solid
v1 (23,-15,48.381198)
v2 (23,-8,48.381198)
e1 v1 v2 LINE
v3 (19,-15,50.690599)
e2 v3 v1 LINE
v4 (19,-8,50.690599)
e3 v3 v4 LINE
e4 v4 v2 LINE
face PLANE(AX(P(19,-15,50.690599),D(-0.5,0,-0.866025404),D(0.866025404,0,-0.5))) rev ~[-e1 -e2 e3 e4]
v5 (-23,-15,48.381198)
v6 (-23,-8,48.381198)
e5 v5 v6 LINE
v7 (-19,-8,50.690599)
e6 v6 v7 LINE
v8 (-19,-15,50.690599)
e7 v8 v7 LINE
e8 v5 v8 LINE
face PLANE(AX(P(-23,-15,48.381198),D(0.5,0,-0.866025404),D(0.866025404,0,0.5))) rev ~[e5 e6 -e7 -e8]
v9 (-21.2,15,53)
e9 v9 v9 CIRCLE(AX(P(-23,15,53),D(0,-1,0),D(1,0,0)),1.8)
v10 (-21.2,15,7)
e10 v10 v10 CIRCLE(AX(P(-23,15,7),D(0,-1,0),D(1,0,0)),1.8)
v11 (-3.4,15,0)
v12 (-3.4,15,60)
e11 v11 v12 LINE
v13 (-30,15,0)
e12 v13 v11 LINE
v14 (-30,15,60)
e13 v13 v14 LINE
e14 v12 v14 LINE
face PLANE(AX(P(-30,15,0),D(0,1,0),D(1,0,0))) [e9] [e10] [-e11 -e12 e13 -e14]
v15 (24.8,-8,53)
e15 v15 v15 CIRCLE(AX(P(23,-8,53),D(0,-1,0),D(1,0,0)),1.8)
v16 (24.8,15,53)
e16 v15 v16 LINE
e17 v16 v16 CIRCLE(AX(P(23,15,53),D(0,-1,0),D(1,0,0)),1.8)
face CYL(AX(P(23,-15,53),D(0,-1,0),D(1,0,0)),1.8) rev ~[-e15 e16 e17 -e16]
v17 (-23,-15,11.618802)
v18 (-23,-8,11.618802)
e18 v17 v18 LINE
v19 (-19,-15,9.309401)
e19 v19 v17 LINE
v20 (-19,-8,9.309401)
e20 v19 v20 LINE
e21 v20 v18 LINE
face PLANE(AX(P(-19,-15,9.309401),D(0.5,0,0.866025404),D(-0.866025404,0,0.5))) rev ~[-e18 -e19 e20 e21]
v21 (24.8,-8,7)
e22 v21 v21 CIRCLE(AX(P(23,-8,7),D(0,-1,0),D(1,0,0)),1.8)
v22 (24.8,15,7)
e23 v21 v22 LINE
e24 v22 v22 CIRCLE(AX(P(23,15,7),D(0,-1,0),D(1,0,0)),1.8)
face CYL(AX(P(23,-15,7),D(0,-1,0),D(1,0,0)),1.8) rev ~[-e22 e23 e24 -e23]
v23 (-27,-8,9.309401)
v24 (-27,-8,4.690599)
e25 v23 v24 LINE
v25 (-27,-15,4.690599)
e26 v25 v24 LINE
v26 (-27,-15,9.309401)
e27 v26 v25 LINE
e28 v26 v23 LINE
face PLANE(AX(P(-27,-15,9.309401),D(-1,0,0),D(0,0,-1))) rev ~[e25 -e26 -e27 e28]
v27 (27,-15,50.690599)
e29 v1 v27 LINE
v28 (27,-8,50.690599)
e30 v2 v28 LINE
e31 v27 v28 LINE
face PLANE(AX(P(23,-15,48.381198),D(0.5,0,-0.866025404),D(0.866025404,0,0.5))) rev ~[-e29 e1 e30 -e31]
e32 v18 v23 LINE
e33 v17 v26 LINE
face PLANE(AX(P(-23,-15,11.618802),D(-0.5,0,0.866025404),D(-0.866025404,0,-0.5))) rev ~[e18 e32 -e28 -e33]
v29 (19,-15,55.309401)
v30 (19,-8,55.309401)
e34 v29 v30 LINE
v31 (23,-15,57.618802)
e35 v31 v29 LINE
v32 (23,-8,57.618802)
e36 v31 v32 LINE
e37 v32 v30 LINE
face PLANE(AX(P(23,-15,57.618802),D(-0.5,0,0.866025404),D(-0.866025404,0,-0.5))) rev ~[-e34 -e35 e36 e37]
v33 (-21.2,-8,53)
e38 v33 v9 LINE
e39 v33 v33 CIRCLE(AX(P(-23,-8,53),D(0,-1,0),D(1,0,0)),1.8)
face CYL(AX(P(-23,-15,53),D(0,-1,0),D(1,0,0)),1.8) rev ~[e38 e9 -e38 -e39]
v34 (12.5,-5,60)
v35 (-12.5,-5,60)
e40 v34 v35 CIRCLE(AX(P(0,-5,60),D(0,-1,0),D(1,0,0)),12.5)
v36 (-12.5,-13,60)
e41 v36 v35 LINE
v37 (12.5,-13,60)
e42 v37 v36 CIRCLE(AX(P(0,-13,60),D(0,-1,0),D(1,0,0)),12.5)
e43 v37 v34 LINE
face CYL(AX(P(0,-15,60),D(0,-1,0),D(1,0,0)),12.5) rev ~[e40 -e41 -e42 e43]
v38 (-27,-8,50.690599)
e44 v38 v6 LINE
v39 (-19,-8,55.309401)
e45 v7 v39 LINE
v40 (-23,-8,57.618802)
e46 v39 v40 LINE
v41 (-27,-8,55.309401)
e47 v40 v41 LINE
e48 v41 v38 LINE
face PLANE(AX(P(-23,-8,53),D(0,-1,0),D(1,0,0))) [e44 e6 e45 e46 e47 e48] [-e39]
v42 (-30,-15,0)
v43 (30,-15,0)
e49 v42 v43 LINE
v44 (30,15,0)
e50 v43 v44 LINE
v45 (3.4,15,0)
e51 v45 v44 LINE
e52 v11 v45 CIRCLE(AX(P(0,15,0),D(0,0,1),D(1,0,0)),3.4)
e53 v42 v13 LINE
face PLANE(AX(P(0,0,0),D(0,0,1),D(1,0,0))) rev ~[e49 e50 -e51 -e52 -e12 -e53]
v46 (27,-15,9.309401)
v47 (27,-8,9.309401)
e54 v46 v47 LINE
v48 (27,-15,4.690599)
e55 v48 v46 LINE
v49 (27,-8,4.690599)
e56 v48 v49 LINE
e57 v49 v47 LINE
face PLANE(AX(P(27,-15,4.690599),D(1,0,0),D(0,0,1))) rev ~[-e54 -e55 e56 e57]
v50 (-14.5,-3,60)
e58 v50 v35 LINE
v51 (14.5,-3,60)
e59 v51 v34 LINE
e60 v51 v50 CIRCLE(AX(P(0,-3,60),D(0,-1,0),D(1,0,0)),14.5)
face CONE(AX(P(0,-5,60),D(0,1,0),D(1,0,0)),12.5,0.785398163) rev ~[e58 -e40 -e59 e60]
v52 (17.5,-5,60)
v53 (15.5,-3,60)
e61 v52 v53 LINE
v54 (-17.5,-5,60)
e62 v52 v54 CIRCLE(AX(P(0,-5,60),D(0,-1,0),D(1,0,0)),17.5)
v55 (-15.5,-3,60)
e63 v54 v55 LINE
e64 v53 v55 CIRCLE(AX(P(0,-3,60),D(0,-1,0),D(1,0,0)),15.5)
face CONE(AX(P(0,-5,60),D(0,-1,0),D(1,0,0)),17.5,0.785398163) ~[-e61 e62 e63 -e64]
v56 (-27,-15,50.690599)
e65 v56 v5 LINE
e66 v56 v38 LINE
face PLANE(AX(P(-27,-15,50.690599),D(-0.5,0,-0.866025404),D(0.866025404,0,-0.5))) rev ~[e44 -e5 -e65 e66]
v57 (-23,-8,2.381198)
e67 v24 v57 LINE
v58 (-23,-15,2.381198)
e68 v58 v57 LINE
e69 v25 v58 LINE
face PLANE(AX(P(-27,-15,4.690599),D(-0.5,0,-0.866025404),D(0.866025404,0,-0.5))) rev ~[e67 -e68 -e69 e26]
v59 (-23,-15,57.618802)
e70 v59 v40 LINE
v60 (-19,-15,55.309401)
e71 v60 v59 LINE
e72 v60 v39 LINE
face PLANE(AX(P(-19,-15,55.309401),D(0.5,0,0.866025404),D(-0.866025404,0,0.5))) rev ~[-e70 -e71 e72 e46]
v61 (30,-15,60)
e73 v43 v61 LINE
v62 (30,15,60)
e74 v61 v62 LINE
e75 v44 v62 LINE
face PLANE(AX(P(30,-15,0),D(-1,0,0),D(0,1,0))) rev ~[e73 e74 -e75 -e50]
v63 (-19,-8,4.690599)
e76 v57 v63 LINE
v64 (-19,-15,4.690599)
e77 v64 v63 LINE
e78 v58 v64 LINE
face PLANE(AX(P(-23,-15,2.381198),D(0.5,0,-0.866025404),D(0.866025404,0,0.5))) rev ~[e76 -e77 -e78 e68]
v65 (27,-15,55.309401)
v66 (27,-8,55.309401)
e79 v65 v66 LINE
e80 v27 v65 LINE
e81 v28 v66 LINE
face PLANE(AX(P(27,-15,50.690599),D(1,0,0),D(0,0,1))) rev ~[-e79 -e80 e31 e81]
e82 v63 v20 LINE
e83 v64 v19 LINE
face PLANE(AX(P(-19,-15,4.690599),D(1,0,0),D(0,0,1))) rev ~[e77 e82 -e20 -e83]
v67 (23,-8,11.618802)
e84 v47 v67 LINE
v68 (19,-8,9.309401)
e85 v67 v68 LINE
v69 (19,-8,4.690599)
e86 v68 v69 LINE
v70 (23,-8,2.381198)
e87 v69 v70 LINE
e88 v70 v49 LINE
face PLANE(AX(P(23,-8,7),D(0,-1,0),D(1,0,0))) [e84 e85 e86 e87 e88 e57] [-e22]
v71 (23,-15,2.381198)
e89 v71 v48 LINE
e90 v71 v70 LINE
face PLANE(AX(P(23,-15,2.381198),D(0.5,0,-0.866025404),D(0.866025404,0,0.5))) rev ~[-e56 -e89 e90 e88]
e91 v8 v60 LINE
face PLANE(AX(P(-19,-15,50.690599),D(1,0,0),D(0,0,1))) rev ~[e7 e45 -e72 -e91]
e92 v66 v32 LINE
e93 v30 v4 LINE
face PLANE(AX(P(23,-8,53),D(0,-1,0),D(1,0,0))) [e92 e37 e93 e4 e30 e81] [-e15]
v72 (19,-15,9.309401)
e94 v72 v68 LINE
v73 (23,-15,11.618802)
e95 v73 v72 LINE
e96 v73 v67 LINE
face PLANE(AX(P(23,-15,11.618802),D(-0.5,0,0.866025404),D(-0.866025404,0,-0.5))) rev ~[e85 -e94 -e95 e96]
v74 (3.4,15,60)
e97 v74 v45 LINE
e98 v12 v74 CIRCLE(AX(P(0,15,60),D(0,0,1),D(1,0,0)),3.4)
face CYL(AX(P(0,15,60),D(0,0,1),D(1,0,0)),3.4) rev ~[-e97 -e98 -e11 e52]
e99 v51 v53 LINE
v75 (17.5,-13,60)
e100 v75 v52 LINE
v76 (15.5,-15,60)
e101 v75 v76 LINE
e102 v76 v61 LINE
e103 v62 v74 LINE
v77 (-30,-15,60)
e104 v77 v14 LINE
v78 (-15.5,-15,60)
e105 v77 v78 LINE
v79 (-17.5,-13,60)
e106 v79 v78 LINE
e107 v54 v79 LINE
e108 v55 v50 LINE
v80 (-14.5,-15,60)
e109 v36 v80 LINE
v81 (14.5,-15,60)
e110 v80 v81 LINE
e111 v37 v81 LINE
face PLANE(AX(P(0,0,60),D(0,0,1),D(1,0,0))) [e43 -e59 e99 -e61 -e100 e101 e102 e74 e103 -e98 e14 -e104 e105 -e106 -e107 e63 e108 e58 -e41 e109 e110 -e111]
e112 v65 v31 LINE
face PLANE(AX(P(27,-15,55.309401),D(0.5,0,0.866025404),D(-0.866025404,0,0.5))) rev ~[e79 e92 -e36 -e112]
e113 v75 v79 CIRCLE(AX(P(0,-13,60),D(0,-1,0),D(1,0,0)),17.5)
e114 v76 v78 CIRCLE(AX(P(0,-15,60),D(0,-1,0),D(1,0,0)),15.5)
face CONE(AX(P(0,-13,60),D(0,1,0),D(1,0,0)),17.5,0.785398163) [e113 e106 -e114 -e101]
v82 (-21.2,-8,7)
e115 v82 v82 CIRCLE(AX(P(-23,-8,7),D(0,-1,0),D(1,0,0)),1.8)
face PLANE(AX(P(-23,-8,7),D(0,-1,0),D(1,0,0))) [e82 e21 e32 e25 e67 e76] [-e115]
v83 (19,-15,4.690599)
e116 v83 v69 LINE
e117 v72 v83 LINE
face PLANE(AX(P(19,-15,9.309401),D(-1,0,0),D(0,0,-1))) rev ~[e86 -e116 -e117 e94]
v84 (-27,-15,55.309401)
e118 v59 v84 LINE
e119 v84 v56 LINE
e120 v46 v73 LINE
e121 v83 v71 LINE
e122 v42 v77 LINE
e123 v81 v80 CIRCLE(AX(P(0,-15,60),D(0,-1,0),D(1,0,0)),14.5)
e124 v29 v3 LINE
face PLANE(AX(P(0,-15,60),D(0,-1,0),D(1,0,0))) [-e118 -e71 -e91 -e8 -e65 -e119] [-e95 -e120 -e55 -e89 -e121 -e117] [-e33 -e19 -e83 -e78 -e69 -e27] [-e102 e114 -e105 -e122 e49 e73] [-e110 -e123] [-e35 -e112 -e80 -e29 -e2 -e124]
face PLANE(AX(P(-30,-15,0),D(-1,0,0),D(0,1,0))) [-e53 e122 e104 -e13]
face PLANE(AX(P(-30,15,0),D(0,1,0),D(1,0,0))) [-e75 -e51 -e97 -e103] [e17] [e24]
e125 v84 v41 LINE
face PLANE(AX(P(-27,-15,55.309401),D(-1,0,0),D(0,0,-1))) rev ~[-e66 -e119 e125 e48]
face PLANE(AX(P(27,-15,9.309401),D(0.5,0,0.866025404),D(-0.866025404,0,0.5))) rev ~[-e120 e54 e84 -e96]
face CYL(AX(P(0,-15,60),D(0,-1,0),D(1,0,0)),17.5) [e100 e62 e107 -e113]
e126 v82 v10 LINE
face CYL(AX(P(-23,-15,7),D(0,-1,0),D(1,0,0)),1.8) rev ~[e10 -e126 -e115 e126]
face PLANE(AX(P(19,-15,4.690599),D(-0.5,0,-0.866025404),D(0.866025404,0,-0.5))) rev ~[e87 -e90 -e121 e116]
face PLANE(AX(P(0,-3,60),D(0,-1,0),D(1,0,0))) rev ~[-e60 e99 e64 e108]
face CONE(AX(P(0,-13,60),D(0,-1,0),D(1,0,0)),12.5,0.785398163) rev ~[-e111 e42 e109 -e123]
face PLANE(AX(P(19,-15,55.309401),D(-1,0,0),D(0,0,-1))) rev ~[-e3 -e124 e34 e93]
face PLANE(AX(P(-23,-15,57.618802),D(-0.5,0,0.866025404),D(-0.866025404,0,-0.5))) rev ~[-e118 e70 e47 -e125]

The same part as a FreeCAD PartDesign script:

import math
import FreeCAD as App
import Part
import Sketcher
Q = App.Units.Quantity


def edges_at(feature, points):
    """Names of the edges that pass closest to the given points."""
    edges = feature.Shape.Edges
    near = lambda p: min(range(len(edges)), key=lambda i: edges[i].distToShape(Part.Vertex(*p))[0])
    return sorted({f"Edge{near(p) + 1}" for p in points})

doc = App.newDocument("Part")
body = doc.addObject("PartDesign::Body", "Body")

# Sketch on XY plane
sketch1 = doc.addObject("Sketcher::SketchObject", "Sketch")
body.addObject(sketch1)
sketch1.AttachmentSupport = (doc.XY_Plane, [""])
sketch1.MapMode = "FlatFace"
sketch1.addGeometry([
    Part.LineSegment(App.Vector(-30, 15, 0), App.Vector(-30, -15, 0)),
    Part.LineSegment(App.Vector(-30, -15, 0), App.Vector(30, -15, 0)),
    Part.LineSegment(App.Vector(30, -15, 0), App.Vector(30, 15, 0)),
    Part.LineSegment(App.Vector(30, 15, 0), App.Vector(-30, 15, 0)),
], False)
sketch1.addConstraint([
    Sketcher.Constraint("Coincident", 0, 2, 1, 1),
    Sketcher.Constraint("Coincident", 1, 2, 2, 1),
    Sketcher.Constraint("Coincident", 2, 2, 3, 1),
    Sketcher.Constraint("Coincident", 3, 2, 0, 1),
    Sketcher.Constraint("Vertical", 0),
    Sketcher.Constraint("Horizontal", 1),
    Sketcher.Constraint("Vertical", 2),
    Sketcher.Constraint("Horizontal", 3),
    Sketcher.Constraint("Symmetric", 0, 2, 2, 2, -1, 1),
    Sketcher.Constraint("DistanceX", 1, 1, 1, 2, 60.0),
    Sketcher.Constraint("DistanceY", 0, 2, 0, 1, 30.0),
])
pad1 = doc.addObject("PartDesign::Pad", "Pad")
body.addObject(pad1)
pad1.Profile = sketch1
pad1.Length = 60

# Sketch on XY plane
sketch2 = doc.addObject("Sketcher::SketchObject", "Sketch001")
body.addObject(sketch2)
sketch2.AttachmentSupport = (doc.XY_Plane, [""])
sketch2.MapMode = "FlatFace"
sketch2.AttachmentOffset = App.Placement(App.Vector(0, 0, 60), App.Rotation())
sketch2.addGeometry(Part.Circle(App.Vector(0, 15, 0), App.Vector(0, 0, 1), 3.4), False)
sketch2.addConstraint([
    Sketcher.Constraint("PointOnObject", 0, 3, -2),
    Sketcher.Constraint("Diameter", 0, 6.8),
    Sketcher.Constraint("DistanceY", -1, 1, 0, 3, 15.0),
])
pocket1 = doc.addObject("PartDesign::Pocket", "Pocket")
body.addObject(pocket1)
pocket1.Profile = sketch2
pocket1.Type = "ThroughAll"

# Sketch on XZ plane
sketch3 = doc.addObject("Sketcher::SketchObject", "Sketch002")
body.addObject(sketch3)
sketch3.AttachmentSupport = (doc.XZ_Plane, [""])
sketch3.MapMode = "FlatFace"
sketch3.AttachmentOffset = App.Placement(App.Vector(0, 0, 15), App.Rotation())
sketch3.addGeometry([
    Part.Circle(App.Vector(-23, 53, 0), App.Vector(0, 0, 1), 1.8),
    Part.Circle(App.Vector(23, 53, 0), App.Vector(0, 0, 1), 1.8),
    Part.Circle(App.Vector(23, 7, 0), App.Vector(0, 0, 1), 1.8),
    Part.Circle(App.Vector(-23, 7, 0), App.Vector(0, 0, 1), 1.8),
], False)
sketch3.addConstraint([
    Sketcher.Constraint("Equal", 0, 1),
    Sketcher.Constraint("Equal", 1, 2),
    Sketcher.Constraint("Equal", 2, 3),
    Sketcher.Constraint("Symmetric", 0, 3, 1, 3, -2),
    Sketcher.Constraint("Symmetric", 2, 3, 3, 3, -2),
    Sketcher.Constraint("Vertical", 1, 3, 2, 3),
    Sketcher.Constraint("Diameter", 0, 3.6),
    Sketcher.Constraint("DistanceX", 0, 3, -1, 1, 23.0),
    Sketcher.Constraint("DistanceY", -1, 1, 0, 3, 53.0),
    Sketcher.Constraint("DistanceY", -1, 1, 2, 3, 7.0),
])
pocket2 = doc.addObject("PartDesign::Pocket", "Pocket001")
body.addObject(pocket2)
pocket2.Profile = sketch3
pocket2.Type = "ThroughAll"

# Sketch on XZ plane
sketch4 = doc.addObject("Sketcher::SketchObject", "Sketch003")
body.addObject(sketch4)
sketch4.AttachmentSupport = (doc.XZ_Plane, [""])
sketch4.MapMode = "FlatFace"
sketch4.AttachmentOffset = App.Placement(App.Vector(0, 0, 15), App.Rotation())
sketch4.addGeometry([
    Part.LineSegment(App.Vector(-23, 48.381198, 0), App.Vector(-19, 50.690599, 0)),  # 0
    Part.LineSegment(App.Vector(-19, 50.690599, 0), App.Vector(-19, 55.309401, 0)),  # 1
    Part.LineSegment(App.Vector(-19, 55.309401, 0), App.Vector(-23, 57.618802, 0)),  # 2
    Part.LineSegment(App.Vector(-23, 57.618802, 0), App.Vector(-27, 55.309401, 0)),  # 3
    Part.LineSegment(App.Vector(-27, 55.309401, 0), App.Vector(-27, 50.690599, 0)),  # 4
    Part.LineSegment(App.Vector(-27, 50.690599, 0), App.Vector(-23, 48.381198, 0)),  # 5
], False)
sketch4.addConstraint([
    Sketcher.Constraint("Coincident", 0, 2, 1, 1),
    Sketcher.Constraint("Coincident", 1, 2, 2, 1),
    Sketcher.Constraint("Coincident", 2, 2, 3, 1),
    Sketcher.Constraint("Coincident", 3, 2, 4, 1),
    Sketcher.Constraint("Coincident", 4, 2, 5, 1),
    Sketcher.Constraint("Coincident", 5, 2, 0, 1),
    Sketcher.Constraint("Vertical", 1),
    Sketcher.Constraint("Vertical", 4),
    Sketcher.Constraint("Parallel", 0, 3),
    Sketcher.Constraint("Parallel", 2, 5),
    Sketcher.Constraint("Horizontal", 1, 2, 3, 2),
    Sketcher.Constraint("Horizontal", 0, 2, 4, 2),
    Sketcher.Constraint("Vertical", 2, 2, 5, 2),
    Sketcher.Constraint("Angle", 0, Q("30 deg")),
    Sketcher.Constraint("DistanceX", 0, 2, -1, 1, 19.0),
    Sketcher.Constraint("DistanceX", 2, 2, -1, 1, 23.0),
    Sketcher.Constraint("DistanceY", -1, 1, 0, 2, 50.690599),
    Sketcher.Constraint("DistanceY", -1, 1, 1, 2, 55.309401),
])
pocket3 = doc.addObject("PartDesign::Pocket", "Pocket002")
body.addObject(pocket3)
pocket3.Profile = sketch4
pocket3.Length = 7

# Sketch on XZ plane
sketch5 = doc.addObject("Sketcher::SketchObject", "Sketch004")
body.addObject(sketch5)
sketch5.AttachmentSupport = (doc.XZ_Plane, [""])
sketch5.MapMode = "FlatFace"
sketch5.AttachmentOffset = App.Placement(App.Vector(0, 0, 15), App.Rotation())
sketch5.addGeometry([
    Part.LineSegment(App.Vector(19, 50.690599, 0), App.Vector(23, 48.381198, 0)),  # 0
    Part.LineSegment(App.Vector(23, 48.381198, 0), App.Vector(27, 50.690599, 0)),  # 1
    Part.LineSegment(App.Vector(27, 50.690599, 0), App.Vector(27, 55.309401, 0)),  # 2
    Part.LineSegment(App.Vector(27, 55.309401, 0), App.Vector(23, 57.618802, 0)),  # 3
    Part.LineSegment(App.Vector(23, 57.618802, 0), App.Vector(19, 55.309401, 0)),  # 4
    Part.LineSegment(App.Vector(19, 55.309401, 0), App.Vector(19, 50.690599, 0)),  # 5
], False)
sketch5.addConstraint([
    Sketcher.Constraint("Coincident", 0, 2, 1, 1),
    Sketcher.Constraint("Coincident", 1, 2, 2, 1),
    Sketcher.Constraint("Coincident", 2, 2, 3, 1),
    Sketcher.Constraint("Coincident", 3, 2, 4, 1),
    Sketcher.Constraint("Coincident", 4, 2, 5, 1),
    Sketcher.Constraint("Coincident", 5, 2, 0, 1),
    Sketcher.Constraint("Vertical", 2),
    Sketcher.Constraint("Vertical", 5),
    Sketcher.Constraint("Parallel", 0, 3),
    Sketcher.Constraint("Parallel", 1, 4),
    Sketcher.Constraint("Horizontal", 2, 2, 4, 2),
    Sketcher.Constraint("Horizontal", 1, 2, 5, 2),
    Sketcher.Constraint("Vertical", 0, 2, 3, 2),
    Sketcher.Constraint("Angle", 0, Q("-30 deg")),
    Sketcher.Constraint("DistanceX", -1, 1, 0, 2, 23.0),
    Sketcher.Constraint("DistanceX", -1, 1, 1, 2, 27.0),
    Sketcher.Constraint("DistanceY", -1, 1, 1, 2, 50.690599),
    Sketcher.Constraint("DistanceY", -1, 1, 2, 2, 55.309401),
])
pocket4 = doc.addObject("PartDesign::Pocket", "Pocket003")
body.addObject(pocket4)
pocket4.Profile = sketch5
pocket4.Length = 7

# Sketch on XZ plane
sketch6 = doc.addObject("Sketcher::SketchObject", "Sketch005")
body.addObject(sketch6)
sketch6.AttachmentSupport = (doc.XZ_Plane, [""])
sketch6.MapMode = "FlatFace"
sketch6.AttachmentOffset = App.Placement(App.Vector(0, 0, 15), App.Rotation())
sketch6.addGeometry([
    Part.LineSegment(App.Vector(-23, 2.381198, 0), App.Vector(-19, 4.690599, 0)),  # 0
    Part.LineSegment(App.Vector(-19, 4.690599, 0), App.Vector(-19, 9.309401, 0)),  # 1
    Part.LineSegment(App.Vector(-19, 9.309401, 0), App.Vector(-23, 11.618802, 0)),  # 2
    Part.LineSegment(App.Vector(-23, 11.618802, 0), App.Vector(-27, 9.309401, 0)),  # 3
    Part.LineSegment(App.Vector(-27, 9.309401, 0), App.Vector(-27, 4.690599, 0)),  # 4
    Part.LineSegment(App.Vector(-27, 4.690599, 0), App.Vector(-23, 2.381198, 0)),  # 5
], False)
sketch6.addConstraint([
    Sketcher.Constraint("Coincident", 0, 2, 1, 1),
    Sketcher.Constraint("Coincident", 1, 2, 2, 1),
    Sketcher.Constraint("Coincident", 2, 2, 3, 1),
    Sketcher.Constraint("Coincident", 3, 2, 4, 1),
    Sketcher.Constraint("Coincident", 4, 2, 5, 1),
    Sketcher.Constraint("Coincident", 5, 2, 0, 1),
    Sketcher.Constraint("Vertical", 1),
    Sketcher.Constraint("Vertical", 4),
    Sketcher.Constraint("Parallel", 0, 3),
    Sketcher.Constraint("Parallel", 2, 5),
    Sketcher.Constraint("Horizontal", 1, 2, 3, 2),
    Sketcher.Constraint("Horizontal", 0, 2, 4, 2),
    Sketcher.Constraint("Vertical", 2, 2, 5, 2),
    Sketcher.Constraint("Angle", 0, Q("30 deg")),
    Sketcher.Constraint("DistanceX", 0, 2, -1, 1, 19.0),
    Sketcher.Constraint("DistanceX", 2, 2, -1, 1, 23.0),
    Sketcher.Constraint("DistanceY", -1, 1, 0, 2, 4.690599),
    Sketcher.Constraint("DistanceY", -1, 1, 1, 2, 9.309401),
])
pocket5 = doc.addObject("PartDesign::Pocket", "Pocket004")
body.addObject(pocket5)
pocket5.Profile = sketch6
pocket5.Length = 7

# Sketch on XZ plane
sketch7 = doc.addObject("Sketcher::SketchObject", "Sketch006")
body.addObject(sketch7)
sketch7.AttachmentSupport = (doc.XZ_Plane, [""])
sketch7.MapMode = "FlatFace"
sketch7.AttachmentOffset = App.Placement(App.Vector(0, 0, 15), App.Rotation())
sketch7.addGeometry([
    Part.LineSegment(App.Vector(23, 2.381198, 0), App.Vector(27, 4.690599, 0)),  # 0
    Part.LineSegment(App.Vector(27, 4.690599, 0), App.Vector(27, 9.309401, 0)),  # 1
    Part.LineSegment(App.Vector(27, 9.309401, 0), App.Vector(23, 11.618802, 0)),  # 2
    Part.LineSegment(App.Vector(23, 11.618802, 0), App.Vector(19, 9.309401, 0)),  # 3
    Part.LineSegment(App.Vector(19, 9.309401, 0), App.Vector(19, 4.690599, 0)),  # 4
    Part.LineSegment(App.Vector(19, 4.690599, 0), App.Vector(23, 2.381198, 0)),  # 5
], False)
sketch7.addConstraint([
    Sketcher.Constraint("Coincident", 0, 2, 1, 1),
    Sketcher.Constraint("Coincident", 1, 2, 2, 1),
    Sketcher.Constraint("Coincident", 2, 2, 3, 1),
    Sketcher.Constraint("Coincident", 3, 2, 4, 1),
    Sketcher.Constraint("Coincident", 4, 2, 5, 1),
    Sketcher.Constraint("Coincident", 5, 2, 0, 1),
    Sketcher.Constraint("Vertical", 1),
    Sketcher.Constraint("Vertical", 4),
    Sketcher.Constraint("Parallel", 0, 3),
    Sketcher.Constraint("Parallel", 2, 5),
    Sketcher.Constraint("Horizontal", 1, 2, 3, 2),
    Sketcher.Constraint("Horizontal", 0, 2, 4, 2),
    Sketcher.Constraint("Vertical", 2, 2, 5, 2),
    Sketcher.Constraint("Angle", 0, Q("30 deg")),
    Sketcher.Constraint("DistanceX", -1, 1, 0, 2, 27.0),
    Sketcher.Constraint("DistanceX", -1, 1, 2, 2, 23.0),
    Sketcher.Constraint("DistanceY", -1, 1, 0, 2, 4.690599),
    Sketcher.Constraint("DistanceY", -1, 1, 1, 2, 9.309401),
])
pocket6 = doc.addObject("PartDesign::Pocket", "Pocket005")
body.addObject(pocket6)
pocket6.Profile = sketch7
pocket6.Length = 7

# Sketch on XZ plane
sketch8 = doc.addObject("Sketcher::SketchObject", "Sketch007")
body.addObject(sketch8)
sketch8.AttachmentSupport = (doc.XZ_Plane, [""])
sketch8.MapMode = "FlatFace"
sketch8.AttachmentOffset = App.Placement(App.Vector(0, 0, 15), App.Rotation())
sketch8.addGeometry(Part.Circle(App.Vector(0, 60, 0), App.Vector(0, 0, 1), 17.5), False)
sketch8.addConstraint([
    Sketcher.Constraint("PointOnObject", 0, 3, -2),
    Sketcher.Constraint("Diameter", 0, 35.0),
    Sketcher.Constraint("DistanceY", -1, 1, 0, 3, 60.0),
])
pad2 = doc.addObject("PartDesign::Pad", "Pad001")
body.addObject(pad2)
pad2.Profile = sketch8
pad2.Length = 12
pad2.Reversed = True

# Sketch on XZ plane
sketch9 = doc.addObject("Sketcher::SketchObject", "Sketch008")
body.addObject(sketch9)
sketch9.AttachmentSupport = (doc.XZ_Plane, [""])
sketch9.MapMode = "FlatFace"
sketch9.AttachmentOffset = App.Placement(App.Vector(0, 0, 15), App.Rotation())
sketch9.addGeometry([
    Part.LineSegment(App.Vector(-12.5, 60, 0), App.Vector(12.5, 60, 0)),
    Part.ArcOfCircle(Part.Circle(App.Vector(0, 60, 0), App.Vector(0, 0, 1), 12.5), math.radians(0), math.radians(180)),
], False)
sketch9.addConstraint([
    Sketcher.Constraint("Coincident", 0, 1, 1, 2),
    Sketcher.Constraint("Coincident", 1, 1, 0, 2),
    Sketcher.Constraint("Horizontal", 0),
    Sketcher.Constraint("PointOnObject", 1, 3, -2),
    Sketcher.Constraint("Horizontal", 1, 3, 0, 1),
    Sketcher.Constraint("Radius", 1, 12.5),
    Sketcher.Constraint("DistanceY", -1, 1, 1, 3, 60.0),
])
pocket7 = doc.addObject("PartDesign::Pocket", "Pocket006")
body.addObject(pocket7)
pocket7.Profile = sketch9
pocket7.Type = "ThroughAll"
doc.recompute()

chamfer = doc.addObject("PartDesign::Chamfer", "Chamfer")
body.addObject(chamfer)
chamfer.Base = (pocket7, edges_at(pocket7, [
    (0, -15, 77.5),
    (0, -3, 77.5),
    (0, -15, 72.5),
    (0, -3, 72.5),
]))
chamfer.Size = 2

doc.recompute()
